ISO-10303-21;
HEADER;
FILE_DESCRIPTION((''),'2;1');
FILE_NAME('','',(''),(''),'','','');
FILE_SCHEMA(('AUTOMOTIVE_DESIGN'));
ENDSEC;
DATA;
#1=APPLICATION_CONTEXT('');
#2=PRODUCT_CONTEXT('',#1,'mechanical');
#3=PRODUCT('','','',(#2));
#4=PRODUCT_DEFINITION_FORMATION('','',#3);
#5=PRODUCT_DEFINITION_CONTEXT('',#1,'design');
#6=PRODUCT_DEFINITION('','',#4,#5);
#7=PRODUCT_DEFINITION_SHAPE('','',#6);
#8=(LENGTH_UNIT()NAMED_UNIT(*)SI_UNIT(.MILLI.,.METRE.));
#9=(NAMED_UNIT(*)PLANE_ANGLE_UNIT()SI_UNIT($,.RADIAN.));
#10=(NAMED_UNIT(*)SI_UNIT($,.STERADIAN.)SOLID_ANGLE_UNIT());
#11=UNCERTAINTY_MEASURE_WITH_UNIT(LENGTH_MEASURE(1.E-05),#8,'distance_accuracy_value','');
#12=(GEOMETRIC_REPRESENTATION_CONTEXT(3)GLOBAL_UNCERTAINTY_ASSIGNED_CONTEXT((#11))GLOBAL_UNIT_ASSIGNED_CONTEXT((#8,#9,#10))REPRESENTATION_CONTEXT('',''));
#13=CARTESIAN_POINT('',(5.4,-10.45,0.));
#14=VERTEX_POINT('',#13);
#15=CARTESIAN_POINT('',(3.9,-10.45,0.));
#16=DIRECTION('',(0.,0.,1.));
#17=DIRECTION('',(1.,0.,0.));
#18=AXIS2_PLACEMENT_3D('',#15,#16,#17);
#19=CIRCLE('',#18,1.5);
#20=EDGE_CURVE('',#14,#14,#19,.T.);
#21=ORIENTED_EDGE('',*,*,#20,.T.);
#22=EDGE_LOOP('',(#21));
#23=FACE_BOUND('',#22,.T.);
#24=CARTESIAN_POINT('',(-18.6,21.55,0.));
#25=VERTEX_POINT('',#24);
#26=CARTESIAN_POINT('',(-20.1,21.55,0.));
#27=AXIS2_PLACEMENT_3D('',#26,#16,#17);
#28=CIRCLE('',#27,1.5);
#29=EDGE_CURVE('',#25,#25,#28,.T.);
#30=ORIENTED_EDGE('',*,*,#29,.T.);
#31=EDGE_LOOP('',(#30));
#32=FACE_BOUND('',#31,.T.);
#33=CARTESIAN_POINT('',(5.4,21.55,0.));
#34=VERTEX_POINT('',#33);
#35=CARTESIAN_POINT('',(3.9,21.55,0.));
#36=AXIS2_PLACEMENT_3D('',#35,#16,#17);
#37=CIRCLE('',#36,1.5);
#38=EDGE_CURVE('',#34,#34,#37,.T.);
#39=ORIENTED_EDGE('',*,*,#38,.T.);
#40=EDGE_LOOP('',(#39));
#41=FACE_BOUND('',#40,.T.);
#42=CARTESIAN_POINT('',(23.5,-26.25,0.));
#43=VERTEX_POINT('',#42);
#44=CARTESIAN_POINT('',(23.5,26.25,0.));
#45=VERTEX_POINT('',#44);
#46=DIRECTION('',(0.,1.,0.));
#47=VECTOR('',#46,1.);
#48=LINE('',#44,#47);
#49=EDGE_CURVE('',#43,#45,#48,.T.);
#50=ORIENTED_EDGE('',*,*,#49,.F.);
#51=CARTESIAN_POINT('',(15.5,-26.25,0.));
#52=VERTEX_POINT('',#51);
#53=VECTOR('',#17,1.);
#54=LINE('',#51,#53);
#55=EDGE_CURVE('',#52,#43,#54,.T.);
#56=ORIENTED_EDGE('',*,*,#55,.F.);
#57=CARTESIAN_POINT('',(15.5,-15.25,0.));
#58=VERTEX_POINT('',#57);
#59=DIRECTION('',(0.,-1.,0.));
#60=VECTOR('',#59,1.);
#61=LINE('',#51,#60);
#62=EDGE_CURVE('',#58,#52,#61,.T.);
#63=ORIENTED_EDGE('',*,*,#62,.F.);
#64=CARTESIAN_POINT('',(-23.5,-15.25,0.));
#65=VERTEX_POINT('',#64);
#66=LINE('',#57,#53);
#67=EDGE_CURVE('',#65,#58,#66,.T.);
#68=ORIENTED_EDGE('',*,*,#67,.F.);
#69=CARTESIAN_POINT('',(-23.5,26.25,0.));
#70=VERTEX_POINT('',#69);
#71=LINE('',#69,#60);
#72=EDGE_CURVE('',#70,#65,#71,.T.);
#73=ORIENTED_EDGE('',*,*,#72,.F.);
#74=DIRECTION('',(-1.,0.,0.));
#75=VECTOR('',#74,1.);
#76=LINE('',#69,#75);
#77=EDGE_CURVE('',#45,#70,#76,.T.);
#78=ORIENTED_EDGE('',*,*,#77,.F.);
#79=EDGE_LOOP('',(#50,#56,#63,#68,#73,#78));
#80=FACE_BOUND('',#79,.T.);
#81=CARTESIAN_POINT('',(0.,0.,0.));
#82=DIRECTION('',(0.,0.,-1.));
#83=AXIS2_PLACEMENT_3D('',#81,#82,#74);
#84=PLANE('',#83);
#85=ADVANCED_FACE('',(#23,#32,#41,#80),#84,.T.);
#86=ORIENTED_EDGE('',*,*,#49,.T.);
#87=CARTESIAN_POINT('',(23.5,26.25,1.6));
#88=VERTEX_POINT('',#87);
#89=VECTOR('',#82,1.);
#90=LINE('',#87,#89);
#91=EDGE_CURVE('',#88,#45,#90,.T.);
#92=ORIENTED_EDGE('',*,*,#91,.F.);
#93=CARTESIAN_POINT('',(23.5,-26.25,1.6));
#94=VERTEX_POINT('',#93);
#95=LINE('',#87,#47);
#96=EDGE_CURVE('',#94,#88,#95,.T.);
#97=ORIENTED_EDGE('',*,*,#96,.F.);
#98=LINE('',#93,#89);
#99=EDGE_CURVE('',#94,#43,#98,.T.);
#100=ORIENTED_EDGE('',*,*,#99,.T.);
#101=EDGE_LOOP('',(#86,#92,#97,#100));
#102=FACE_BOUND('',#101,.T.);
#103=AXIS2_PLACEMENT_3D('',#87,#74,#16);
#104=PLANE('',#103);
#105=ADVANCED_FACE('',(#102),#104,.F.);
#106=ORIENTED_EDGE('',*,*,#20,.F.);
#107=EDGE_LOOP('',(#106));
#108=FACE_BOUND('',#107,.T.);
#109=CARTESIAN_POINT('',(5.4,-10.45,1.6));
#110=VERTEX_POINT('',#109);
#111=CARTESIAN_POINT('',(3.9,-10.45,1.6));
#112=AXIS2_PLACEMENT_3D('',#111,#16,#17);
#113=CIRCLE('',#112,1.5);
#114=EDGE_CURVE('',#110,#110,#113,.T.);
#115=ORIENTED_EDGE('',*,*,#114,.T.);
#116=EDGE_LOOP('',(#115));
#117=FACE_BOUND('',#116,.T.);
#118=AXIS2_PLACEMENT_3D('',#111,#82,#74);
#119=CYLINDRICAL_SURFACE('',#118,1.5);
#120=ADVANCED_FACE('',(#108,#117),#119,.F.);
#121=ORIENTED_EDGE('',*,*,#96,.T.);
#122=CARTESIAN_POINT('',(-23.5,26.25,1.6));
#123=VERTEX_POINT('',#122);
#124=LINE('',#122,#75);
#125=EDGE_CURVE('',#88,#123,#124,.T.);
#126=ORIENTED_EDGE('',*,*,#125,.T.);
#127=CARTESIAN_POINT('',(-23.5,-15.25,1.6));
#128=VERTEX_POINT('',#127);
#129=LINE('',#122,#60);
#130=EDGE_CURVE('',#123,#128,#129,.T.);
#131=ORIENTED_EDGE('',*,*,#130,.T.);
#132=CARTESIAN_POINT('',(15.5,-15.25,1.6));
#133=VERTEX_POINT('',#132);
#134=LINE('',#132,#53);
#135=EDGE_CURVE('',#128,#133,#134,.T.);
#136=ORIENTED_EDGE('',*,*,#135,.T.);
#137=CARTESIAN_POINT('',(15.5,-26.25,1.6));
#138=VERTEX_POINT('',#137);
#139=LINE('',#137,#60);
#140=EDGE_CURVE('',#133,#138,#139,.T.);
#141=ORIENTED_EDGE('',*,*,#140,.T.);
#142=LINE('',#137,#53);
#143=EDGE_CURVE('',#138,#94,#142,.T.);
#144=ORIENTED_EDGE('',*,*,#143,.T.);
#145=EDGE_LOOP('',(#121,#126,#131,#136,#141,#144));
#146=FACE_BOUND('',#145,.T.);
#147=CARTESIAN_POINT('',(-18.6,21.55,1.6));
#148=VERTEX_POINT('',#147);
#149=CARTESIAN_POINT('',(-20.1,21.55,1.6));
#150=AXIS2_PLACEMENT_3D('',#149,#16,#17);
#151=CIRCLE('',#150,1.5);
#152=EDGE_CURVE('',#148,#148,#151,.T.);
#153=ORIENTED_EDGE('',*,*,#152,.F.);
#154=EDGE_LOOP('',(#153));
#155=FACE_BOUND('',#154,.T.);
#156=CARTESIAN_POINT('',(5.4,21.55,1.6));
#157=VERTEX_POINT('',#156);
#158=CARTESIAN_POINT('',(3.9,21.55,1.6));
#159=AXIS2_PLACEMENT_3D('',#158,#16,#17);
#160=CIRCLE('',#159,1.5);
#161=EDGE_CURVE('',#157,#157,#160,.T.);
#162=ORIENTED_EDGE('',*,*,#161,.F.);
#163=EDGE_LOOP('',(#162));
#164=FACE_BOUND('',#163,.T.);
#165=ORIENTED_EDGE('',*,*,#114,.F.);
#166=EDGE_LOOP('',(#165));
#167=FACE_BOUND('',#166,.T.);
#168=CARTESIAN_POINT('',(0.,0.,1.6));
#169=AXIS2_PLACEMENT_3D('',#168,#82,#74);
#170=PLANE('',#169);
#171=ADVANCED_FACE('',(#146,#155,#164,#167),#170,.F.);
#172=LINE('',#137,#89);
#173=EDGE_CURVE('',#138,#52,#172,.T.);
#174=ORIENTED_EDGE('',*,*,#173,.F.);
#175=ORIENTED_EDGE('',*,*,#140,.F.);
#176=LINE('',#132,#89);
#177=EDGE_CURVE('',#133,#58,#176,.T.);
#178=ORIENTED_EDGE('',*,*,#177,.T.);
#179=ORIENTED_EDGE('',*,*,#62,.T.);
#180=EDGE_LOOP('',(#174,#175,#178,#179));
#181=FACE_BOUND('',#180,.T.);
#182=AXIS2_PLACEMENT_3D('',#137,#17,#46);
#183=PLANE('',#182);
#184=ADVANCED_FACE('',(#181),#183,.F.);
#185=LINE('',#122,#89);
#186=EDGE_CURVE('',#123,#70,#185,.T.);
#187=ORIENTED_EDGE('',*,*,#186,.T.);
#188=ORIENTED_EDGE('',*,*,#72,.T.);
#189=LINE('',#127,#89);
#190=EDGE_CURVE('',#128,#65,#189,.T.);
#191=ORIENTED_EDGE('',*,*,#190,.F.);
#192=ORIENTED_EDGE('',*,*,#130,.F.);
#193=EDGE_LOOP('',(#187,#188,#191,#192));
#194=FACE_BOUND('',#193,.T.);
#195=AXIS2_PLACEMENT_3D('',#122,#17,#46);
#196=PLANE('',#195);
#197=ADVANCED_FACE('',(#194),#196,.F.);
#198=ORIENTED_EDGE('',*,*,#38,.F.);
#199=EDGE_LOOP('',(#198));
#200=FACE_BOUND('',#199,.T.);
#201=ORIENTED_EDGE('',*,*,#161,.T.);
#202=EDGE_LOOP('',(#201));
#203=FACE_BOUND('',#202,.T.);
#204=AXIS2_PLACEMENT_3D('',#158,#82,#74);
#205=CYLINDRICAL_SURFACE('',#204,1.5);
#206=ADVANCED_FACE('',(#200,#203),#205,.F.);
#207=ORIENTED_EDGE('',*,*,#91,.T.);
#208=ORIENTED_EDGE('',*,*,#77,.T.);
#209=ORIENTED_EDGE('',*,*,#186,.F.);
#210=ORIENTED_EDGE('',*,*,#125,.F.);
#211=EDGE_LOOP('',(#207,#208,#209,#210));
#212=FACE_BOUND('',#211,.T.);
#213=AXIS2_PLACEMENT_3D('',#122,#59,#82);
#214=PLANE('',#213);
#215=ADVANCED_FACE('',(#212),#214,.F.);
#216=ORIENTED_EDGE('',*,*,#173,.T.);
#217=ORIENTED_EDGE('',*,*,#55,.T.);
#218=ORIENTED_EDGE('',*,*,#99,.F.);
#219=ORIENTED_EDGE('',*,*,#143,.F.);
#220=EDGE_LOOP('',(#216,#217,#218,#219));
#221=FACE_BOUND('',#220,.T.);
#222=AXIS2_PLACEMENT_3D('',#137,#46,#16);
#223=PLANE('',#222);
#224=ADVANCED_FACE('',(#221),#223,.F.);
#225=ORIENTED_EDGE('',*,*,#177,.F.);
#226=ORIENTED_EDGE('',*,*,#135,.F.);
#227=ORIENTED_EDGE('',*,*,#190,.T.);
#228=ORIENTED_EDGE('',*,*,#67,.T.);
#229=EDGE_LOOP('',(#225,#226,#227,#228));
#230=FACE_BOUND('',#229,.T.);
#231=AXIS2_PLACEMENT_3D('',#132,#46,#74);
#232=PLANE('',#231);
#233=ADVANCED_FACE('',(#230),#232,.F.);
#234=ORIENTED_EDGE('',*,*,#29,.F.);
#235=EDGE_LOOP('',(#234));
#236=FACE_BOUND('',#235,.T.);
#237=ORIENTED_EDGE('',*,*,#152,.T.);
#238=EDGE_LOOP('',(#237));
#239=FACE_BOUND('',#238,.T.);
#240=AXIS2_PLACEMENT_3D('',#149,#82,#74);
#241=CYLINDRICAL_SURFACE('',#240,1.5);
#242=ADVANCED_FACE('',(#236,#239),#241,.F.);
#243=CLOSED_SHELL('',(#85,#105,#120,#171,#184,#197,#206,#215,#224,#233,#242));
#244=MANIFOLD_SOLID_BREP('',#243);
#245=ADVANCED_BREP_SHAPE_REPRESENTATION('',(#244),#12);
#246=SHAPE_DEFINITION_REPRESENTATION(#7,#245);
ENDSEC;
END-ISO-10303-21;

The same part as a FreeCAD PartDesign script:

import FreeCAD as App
import Part
import Sketcher

V = App.Vector


def add_polygon(sketch, points):
    """Adds a closed chain of lines whose ends are joined by coincident constraints."""
    first, n = sketch.GeometryCount, len(points)
    for a, b in zip(points, points[1:] + points[:1]):
        sketch.addGeometry(Part.LineSegment(App.Vector(*a, 0), App.Vector(*b, 0)), False)
    for i in range(n):
        sketch.addConstraint(Sketcher.Constraint("Coincident", first + i, 2, first + (i + 1) % n, 1))

doc = App.newDocument("Part")
body = doc.addObject("PartDesign::Body", "Body")

sketch1 = body.newObject("Sketcher::SketchObject", "Sketch")
sketch1.AttachmentSupport = (doc.getObject("XY_Plane"), [""])
sketch1.MapMode = "FlatFace"
add_polygon(sketch1, [(15.5, -15.2), (15.5, -26.2), (23.5, -26.2), (23.5, 26.2), (-23.5, 26.2), (-23.5, -15.2)])
sketch1.addGeometry(Part.Circle(V(3.9, -10.4, 0), V(0, 0, 1), 1.5), False)
sketch1.addGeometry(Part.Circle(V(3.9, 21.6, 0), V(0, 0, 1), 1.5), False)
sketch1.addGeometry(Part.Circle(V(-20.1, 21.6, 0), V(0, 0, 1), 1.5), False)
sketch1.addConstraint(Sketcher.Constraint("Vertical", 0))
sketch1.addConstraint(Sketcher.Constraint("Horizontal", 1))
sketch1.addConstraint(Sketcher.Constraint("Vertical", 2))
sketch1.addConstraint(Sketcher.Constraint("Horizontal", 3))
sketch1.addConstraint(Sketcher.Constraint("Vertical", 4))
sketch1.addConstraint(Sketcher.Constraint("Horizontal", 5))
sketch1.addConstraint(Sketcher.Constraint("Equal", 6, 7))
sketch1.addConstraint(Sketcher.Constraint("Equal", 7, 8))
sketch1.addConstraint(Sketcher.Constraint("Symmetric", 1, 2, 3, 2, -1, 1))
sketch1.addConstraint(Sketcher.Constraint("Horizontal", 7, 3, 8, 3))
sketch1.addConstraint(Sketcher.Constraint("Vertical", 6, 3, 7, 3))
sketch1.addConstraint(Sketcher.Constraint("Diameter", 6, 3.0))
sketch1.addConstraint(Sketcher.Constraint("DistanceX", 1, 1, 1, 2, 8.0))
sketch1.addConstraint(Sketcher.Constraint("DistanceX", 3, 2, 3, 1, 47.0))
sketch1.addConstraint(Sketcher.Constraint("DistanceY", 0, 2, 0, 1, 11.0))
sketch1.addConstraint(Sketcher.Constraint("DistanceY", 2, 1, 2, 2, 52.5))
sketch1.addConstraint(Sketcher.Constraint("DistanceY", 6, 3, 7, 3, 32.0))
sketch1.addConstraint(Sketcher.Constraint("DistanceX", 8, 3, 7, 3, 24.0))
sketch1.addConstraint(Sketcher.Constraint("DistanceX", -1, 1, 6, 3, 3.9))
sketch1.addConstraint(Sketcher.Constraint("DistanceY", 0, 2, 6, 3, 15.8))
pad1 = body.newObject("PartDesign::Pad", "Pad")
pad1.Profile = sketch1
pad1.Length = 1.6

doc.recompute()
